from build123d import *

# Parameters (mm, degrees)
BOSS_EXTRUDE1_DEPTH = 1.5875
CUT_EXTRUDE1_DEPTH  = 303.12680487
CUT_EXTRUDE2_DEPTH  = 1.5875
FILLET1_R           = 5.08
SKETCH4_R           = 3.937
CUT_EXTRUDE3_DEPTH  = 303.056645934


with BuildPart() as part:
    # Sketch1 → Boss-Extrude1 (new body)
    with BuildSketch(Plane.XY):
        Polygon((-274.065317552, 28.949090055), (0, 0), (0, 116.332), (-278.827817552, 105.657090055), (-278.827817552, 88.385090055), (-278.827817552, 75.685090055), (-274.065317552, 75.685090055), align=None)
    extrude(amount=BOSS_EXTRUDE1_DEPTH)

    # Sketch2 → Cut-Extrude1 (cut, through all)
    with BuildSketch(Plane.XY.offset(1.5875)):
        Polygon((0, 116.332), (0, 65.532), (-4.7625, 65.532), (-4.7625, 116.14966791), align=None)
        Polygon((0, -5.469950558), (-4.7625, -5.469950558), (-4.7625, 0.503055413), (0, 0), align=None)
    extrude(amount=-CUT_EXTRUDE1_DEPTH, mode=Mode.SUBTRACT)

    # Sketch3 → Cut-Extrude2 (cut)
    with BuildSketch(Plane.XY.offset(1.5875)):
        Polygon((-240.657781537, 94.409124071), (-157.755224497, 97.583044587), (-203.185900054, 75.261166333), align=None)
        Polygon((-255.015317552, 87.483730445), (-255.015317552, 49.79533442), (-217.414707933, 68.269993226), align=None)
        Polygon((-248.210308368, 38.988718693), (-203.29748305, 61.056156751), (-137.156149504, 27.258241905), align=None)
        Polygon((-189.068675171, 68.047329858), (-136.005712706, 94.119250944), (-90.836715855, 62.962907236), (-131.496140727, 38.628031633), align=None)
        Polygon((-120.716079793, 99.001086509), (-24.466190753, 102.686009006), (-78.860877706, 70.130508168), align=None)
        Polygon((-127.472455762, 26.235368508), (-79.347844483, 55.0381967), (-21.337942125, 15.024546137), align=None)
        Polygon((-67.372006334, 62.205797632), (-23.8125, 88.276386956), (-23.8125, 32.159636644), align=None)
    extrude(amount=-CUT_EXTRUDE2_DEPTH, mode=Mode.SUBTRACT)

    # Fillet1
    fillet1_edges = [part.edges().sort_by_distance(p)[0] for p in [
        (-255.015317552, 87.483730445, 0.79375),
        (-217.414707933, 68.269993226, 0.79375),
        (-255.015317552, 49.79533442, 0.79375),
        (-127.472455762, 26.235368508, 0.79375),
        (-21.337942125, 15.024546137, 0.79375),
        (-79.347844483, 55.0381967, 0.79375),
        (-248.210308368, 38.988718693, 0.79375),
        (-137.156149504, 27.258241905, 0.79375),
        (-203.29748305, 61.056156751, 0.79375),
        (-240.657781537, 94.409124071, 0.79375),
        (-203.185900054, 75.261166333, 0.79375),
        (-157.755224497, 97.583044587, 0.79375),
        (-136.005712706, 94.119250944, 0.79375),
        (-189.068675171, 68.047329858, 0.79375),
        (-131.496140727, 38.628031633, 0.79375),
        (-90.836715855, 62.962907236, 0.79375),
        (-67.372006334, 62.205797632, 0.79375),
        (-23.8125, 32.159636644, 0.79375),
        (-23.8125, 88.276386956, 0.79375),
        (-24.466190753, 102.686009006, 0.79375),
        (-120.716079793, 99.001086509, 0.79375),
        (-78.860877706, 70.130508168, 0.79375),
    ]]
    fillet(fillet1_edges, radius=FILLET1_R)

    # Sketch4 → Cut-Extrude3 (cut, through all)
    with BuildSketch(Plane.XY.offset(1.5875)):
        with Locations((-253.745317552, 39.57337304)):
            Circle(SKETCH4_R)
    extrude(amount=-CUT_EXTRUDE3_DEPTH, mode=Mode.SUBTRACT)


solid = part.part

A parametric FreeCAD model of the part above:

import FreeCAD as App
import Part
import Sketcher

V = App.Vector
Q = App.Units.Quantity


def edges_at(feature, points):
    """Names of the edges that pass closest to the given points."""
    edges = feature.Shape.Edges
    near = lambda p: min(range(len(edges)), key=lambda i: edges[i].distToShape(Part.Vertex(*p))[0])
    return sorted({f"Edge{near(p) + 1}" for p in points})


def add_polygon(sketch, points):
    """Adds a closed chain of lines whose ends are joined by coincident constraints."""
    first, n = sketch.GeometryCount, len(points)
    for a, b in zip(points, points[1:] + points[:1]):
        sketch.addGeometry(Part.LineSegment(App.Vector(*a, 0), App.Vector(*b, 0)), False)
    for i in range(n):
        sketch.addConstraint(Sketcher.Constraint("Coincident", first + i, 2, first + (i + 1) % n, 1))

doc = App.newDocument("Part")
body = doc.addObject("PartDesign::Body", "Body")

sketch1 = doc.addObject("Sketcher::SketchObject", "Sketch")
body.addObject(sketch1)
sketch1.AttachmentSupport = (doc.XY_Plane, [""])
sketch1.MapMode = "FlatFace"
add_polygon(sketch1, [(-274.065318, 28.94909), (0, 0), (0, 116.332), (-278.827818, 105.65709), (-278.827818, 75.68509), (-274.065318, 75.68509)])
sketch1.addConstraint([
    Sketcher.Constraint("Vertical", 1),
    Sketcher.Constraint("Vertical", 3),
    Sketcher.Constraint("Horizontal", 4),
    Sketcher.Constraint("Vertical", 5),
    Sketcher.Constraint("Coincident", 0, 2, -1, 1),
    Sketcher.Constraint("DistanceY", 1, 1, 1, 2, Q("4.58 in")),
    Sketcher.Constraint("DistanceY", 3, 2, 3, 1, Q("1.18 in")),
    Sketcher.Constraint("DistanceY", 5, 2, 5, 1, Q("1.84 in")),
    Sketcher.Constraint("Distance", 0, Q("10.85 in")),
    Sketcher.Constraint("DistanceX", 4, 1, 4, 2, Q("0.1875 in")),
    Sketcher.Constraint("DistanceY", -1, 1, 2, 2, Q("105.65709 mm")),
])
pad1 = doc.addObject("PartDesign::Pad", "Pad")
body.addObject(pad1)
pad1.Profile = sketch1
pad1.Length = Q("0.0625 in")

sketch2 = doc.addObject("Sketcher::SketchObject", "Sketch001")
body.addObject(sketch2)
sketch2.AttachmentSupport = (doc.XY_Plane, [""])
sketch2.MapMode = "FlatFace"
sketch2.AttachmentOffset = App.Placement(V(0, 0, 0.0625 * 25.4), App.Rotation())
add_polygon(sketch2, [(0, 65.532), (0, 116.332), (-4.7625, 116.149668), (-4.7625, 65.532)])
add_polygon(sketch2, [(-4.7625, -5.469951), (0, -5.469951), (0, 0), (-4.7625, 0.503055)])
sketch2.addConstraint([
    Sketcher.Constraint("Vertical", 0),
    Sketcher.Constraint("Vertical", 2),
    Sketcher.Constraint("Horizontal", 3),
    Sketcher.Constraint("Horizontal", 4),
    Sketcher.Constraint("Vertical", 5),
    Sketcher.Constraint("Vertical", 7),
    Sketcher.Constraint("Coincident", 5, 2, -1, 1),
    Sketcher.Constraint("PointOnObject", 0, 2, -2),
    Sketcher.Constraint("Vertical", 2, 2, 6, 2),
    Sketcher.Constraint("DistanceY", 0, 1, 0, 2, Q("2 in")),
    Sketcher.Constraint("DistanceX", 3, 1, 3, 2, Q("0.1875 in")),
    Sketcher.Constraint("DistanceY", -1, 1, 0, 2, Q("4.58 in")),
    Sketcher.Constraint("DistanceY", 5, 1, 5, 2, Q("5.469951 mm")),
    Sketcher.Constraint("Distance", 1, Q("4.765989 mm")),
    Sketcher.Constraint("DistanceY", 7, 2, 7, 1, Q("5.973006 mm")),
])
pocket1 = doc.addObject("PartDesign::Pocket", "Pocket")
body.addObject(pocket1)
pocket1.Profile = sketch2
pocket1.Type = "ThroughAll"

sketch3 = doc.addObject("Sketcher::SketchObject", "Sketch002")
body.addObject(sketch3)
sketch3.AttachmentSupport = (doc.XY_Plane, [""])
sketch3.MapMode = "FlatFace"
sketch3.AttachmentOffset = App.Placement(V(0, 0, 0.0625 * 25.4), App.Rotation())
add_polygon(sketch3, [(-157.755224, 97.583045), (-240.657782, 94.409124), (-203.1859, 75.261166)])
add_polygon(sketch3, [(-255.015318, 87.48373), (-255.015318, 49.795334), (-217.414708, 68.269993)])
add_polygon(sketch3, [(-203.297483, 61.056157), (-248.210308, 38.988719), (-137.15615, 27.258242)])
add_polygon(sketch3, [(-136.005713, 94.119251), (-189.068675, 68.04733), (-131.496141, 38.628032), (-90.836716, 62.962907)])
add_polygon(sketch3, [(-24.466191, 102.686009), (-120.71608, 99.001087), (-78.860878, 70.130508)])
add_polygon(sketch3, [(-79.347844, 55.038197), (-127.472456, 26.235369), (-21.337942, 15.024546)])
add_polygon(sketch3, [(-23.8125, 88.276387), (-67.372006, 62.205798), (-23.8125, 32.159637)])
sketch3.addConstraint([
    Sketcher.Constraint("Vertical", 3),
    Sketcher.Constraint("Vertical", 21),
    Sketcher.Constraint("Parallel", 2, 4),
    Sketcher.Constraint("Parallel", 1, 5),
    Sketcher.Constraint("Parallel", 4, 6),
    Sketcher.Constraint("Parallel", 5, 8),
    Sketcher.Constraint("Parallel", 6, 9),
    Sketcher.Constraint("Parallel", 8, 10),
    Sketcher.Constraint("Parallel", 0, 13),
    Sketcher.Constraint("Parallel", 12, 14),
    Sketcher.Constraint("Parallel", 11, 15),
    Sketcher.Constraint("Parallel", 15, 16),
    Sketcher.Constraint("Parallel", 7, 17),
    Sketcher.Constraint("Parallel", 14, 18),
    Sketcher.Constraint("Parallel", 16, 19),
    Sketcher.Constraint("Parallel", 18, 20),
    Sketcher.Constraint("DistanceX", 20, 2, -1, 1, Q("0.9375 in")),
    Sketcher.Constraint("DistanceX", 9, 2, 11, 2, Q("3.8674 in")),
    Sketcher.Constraint("DistanceY", 16, 2, 10, 2, Q("0.4879001 in")),
    Sketcher.Constraint("Distance", 13, Q("96.320402 mm")),
    Sketcher.Constraint("DistanceY", 21, 1, 21, 2, Q("56.11675 mm")),
    Sketcher.Constraint("DistanceX", 1, 2, -1, 1, Q("203.1859 mm")),
    Sketcher.Constraint("DistanceX", 6, 2, 4, 2, Q("30.7956 mm")),
    Sketcher.Constraint("DistanceX", 0, 2, 8, 2, Q("37.360298 mm")),
    Sketcher.Constraint("DistanceY", 10, 2, 9, 2, Q("29.419298 mm")),
    Sketcher.Constraint("DistanceY", 11, 2, 14, 2, Q("7.167601 mm")),
    Sketcher.Constraint("DistanceY", 14, 2, 15, 2, Q("32.555501 mm")),
    Sketcher.Constraint("DistanceX", 10, 2, 17, 2, Q("110.158199 mm")),
    Sketcher.Constraint("DistanceY", 18, 2, 19, 2, Q("7.167601 mm")),
    Sketcher.Constraint("Distance", 0, Q("82.963291 mm")),
    Sketcher.Constraint("Distance", 1, Q("42.08071 mm")),
    Sketcher.Constraint("Distance", 4, Q("41.894139 mm")),
    Sketcher.Constraint("Distance", 5, Q("42.225271 mm")),
    Sketcher.Constraint("Distance", 6, Q("50.04132 mm")),
    Sketcher.Constraint("Distance", 10, Q("64.65363 mm")),
    Sketcher.Constraint("Distance", 11, Q("47.385388 mm")),
    Sketcher.Constraint("Distance", 16, Q("56.08548 mm")),
    Sketcher.Constraint("Distance", 18, Q("70.471562 mm")),
    Sketcher.Constraint("DistanceY", -1, 1, 5, 2, Q("87.48373 mm")),
    Sketcher.Constraint("DistanceY", -1, 1, 6, 2, Q("38.988719 mm")),
    Sketcher.Constraint("DistanceY", -1, 1, 9, 2, Q("68.04733 mm")),
    Sketcher.Constraint("DistanceX", 10, 2, -1, 1, Q("131.496141 mm")),
    Sketcher.Constraint("DistanceX", 13, 2, -1, 1, Q("120.71608 mm")),
    Sketcher.Constraint("DistanceY", 3, 2, 0, 2, Q("44.61379 mm")),
])
pocket2 = doc.addObject("PartDesign::Pocket", "Pocket001")
body.addObject(pocket2)
pocket2.Profile = sketch3
pocket2.Length = Q("0.0625 in")
doc.recompute()

fillet = doc.addObject("PartDesign::Fillet", "Fillet")
body.addObject(fillet)
fillet.Base = (pocket2, edges_at(pocket2, [
    (-255.015, 87.484, 0.794),
    (-217.415, 68.27, 0.794),
    (-255.015, 49.795, 0.794),
    (-127.472, 26.235, 0.794),
    (-21.338, 15.025, 0.794),
    (-79.348, 55.038, 0.794),
    (-248.21, 38.989, 0.794),
    (-137.156, 27.258, 0.794),
    (-203.297, 61.056, 0.794),
    (-240.658, 94.409, 0.794),
    (-203.186, 75.261, 0.794),
    (-157.755, 97.583, 0.794),
    (-136.006, 94.119, 0.794),
    (-189.069, 68.047, 0.794),
    (-131.496, 38.628, 0.794),
    (-90.837, 62.963, 0.794),
    (-67.372, 62.206, 0.794),
    (-23.812, 32.16, 0.794),
    (-23.812, 88.276, 0.794),
    (-24.466, 102.686, 0.794),
    (-120.716, 99.001, 0.794),
    (-78.861, 70.131, 0.794),
]))
fillet.Radius = Q("0.2 in")

sketch4 = doc.addObject("Sketcher::SketchObject", "Sketch003")
body.addObject(sketch4)
sketch4.AttachmentSupport = (doc.XY_Plane, [""])
sketch4.MapMode = "FlatFace"
sketch4.AttachmentOffset = App.Placement(V(0, 0, 0.0625 * 25.4), App.Rotation())
sketch4.addGeometry(Part.Circle(V(-253.745318, 39.573373, 0), V(0, 0, 1), 3.937), False)
sketch4.addConstraint([
    Sketcher.Constraint("Diameter", 0, Q("0.31 in")),
    Sketcher.Constraint("DistanceX", 0, 3, -1, 1, Q("253.745318 mm")),
    Sketcher.Constraint("DistanceY", -1, 1, 0, 3, Q("39.573373 mm")),
])
pocket3 = doc.addObject("PartDesign::Pocket", "Pocket002")
body.addObject(pocket3)
pocket3.Profile = sketch4
pocket3.Type = "ThroughAll"

doc.recompute()
